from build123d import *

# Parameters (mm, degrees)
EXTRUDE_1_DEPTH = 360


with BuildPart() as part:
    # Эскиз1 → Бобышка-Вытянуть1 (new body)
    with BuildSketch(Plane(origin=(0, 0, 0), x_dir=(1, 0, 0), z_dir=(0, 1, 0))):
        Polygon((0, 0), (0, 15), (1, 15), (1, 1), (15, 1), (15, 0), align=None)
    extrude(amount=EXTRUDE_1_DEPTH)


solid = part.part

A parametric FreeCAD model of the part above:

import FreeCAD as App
import Part
import Sketcher
from FreeCAD import Vector

doc = App.newDocument("Part")
body = doc.addObject("PartDesign::Body", "Body")

# Sketch on XZ plane
sketch1 = body.newObject("Sketcher::SketchObject", "Sketch")
sketch1.AttachmentSupport = (doc.getObject("XZ_Plane"), [""])
sketch1.MapMode = "FlatFace"
sketch1.addGeometry(Part.LineSegment(Vector(0, -15, 0), Vector(0, 0, 0)), False)
sketch1.addGeometry(Part.LineSegment(Vector(0, 0, 0), Vector(15, 0, 0)), False)
sketch1.addGeometry(Part.LineSegment(Vector(15, 0, 0), Vector(15, -1, 0)), False)
sketch1.addGeometry(Part.LineSegment(Vector(15, -1, 0), Vector(1, -1, 0)), False)
sketch1.addGeometry(Part.LineSegment(Vector(1, -1, 0), Vector(1, -15, 0)), False)
sketch1.addGeometry(Part.LineSegment(Vector(1, -15, 0), Vector(0, -15, 0)), False)
sketch1.addConstraint(Sketcher.Constraint("Coincident", 0, 2, 1, 1))
sketch1.addConstraint(Sketcher.Constraint("Coincident", 1, 2, 2, 1))
sketch1.addConstraint(Sketcher.Constraint("Coincident", 2, 2, 3, 1))
sketch1.addConstraint(Sketcher.Constraint("Coincident", 3, 2, 4, 1))
sketch1.addConstraint(Sketcher.Constraint("Coincident", 4, 2, 5, 1))
sketch1.addConstraint(Sketcher.Constraint("Coincident", 5, 2, 0, 1))
sketch1.addConstraint(Sketcher.Constraint("Vertical", 0))
sketch1.addConstraint(Sketcher.Constraint("Horizontal", 1))
sketch1.addConstraint(Sketcher.Constraint("Vertical", 2))
sketch1.addConstraint(Sketcher.Constraint("Horizontal", 3))
sketch1.addConstraint(Sketcher.Constraint("Vertical", 4))
sketch1.addConstraint(Sketcher.Constraint("Horizontal", 5))
sketch1.addConstraint(Sketcher.Constraint("Coincident", 0, 2, -1, 1))
sketch1.addConstraint(Sketcher.Constraint("Equal", 1, 0))
sketch1.addConstraint(Sketcher.Constraint("Equal", 5, 2))
sketch1.addConstraint(Sketcher.Constraint("DistanceX", 1, 1, 1, 2, 15.0))
sketch1.addConstraint(Sketcher.Constraint("DistanceX", 3, 2, 3, 1, 14.0))
pad1 = body.newObject("PartDesign::Pad", "Pad")
pad1.Profile = sketch1
pad1.Length = 360
pad1.Reversed = True

doc.recompute()
